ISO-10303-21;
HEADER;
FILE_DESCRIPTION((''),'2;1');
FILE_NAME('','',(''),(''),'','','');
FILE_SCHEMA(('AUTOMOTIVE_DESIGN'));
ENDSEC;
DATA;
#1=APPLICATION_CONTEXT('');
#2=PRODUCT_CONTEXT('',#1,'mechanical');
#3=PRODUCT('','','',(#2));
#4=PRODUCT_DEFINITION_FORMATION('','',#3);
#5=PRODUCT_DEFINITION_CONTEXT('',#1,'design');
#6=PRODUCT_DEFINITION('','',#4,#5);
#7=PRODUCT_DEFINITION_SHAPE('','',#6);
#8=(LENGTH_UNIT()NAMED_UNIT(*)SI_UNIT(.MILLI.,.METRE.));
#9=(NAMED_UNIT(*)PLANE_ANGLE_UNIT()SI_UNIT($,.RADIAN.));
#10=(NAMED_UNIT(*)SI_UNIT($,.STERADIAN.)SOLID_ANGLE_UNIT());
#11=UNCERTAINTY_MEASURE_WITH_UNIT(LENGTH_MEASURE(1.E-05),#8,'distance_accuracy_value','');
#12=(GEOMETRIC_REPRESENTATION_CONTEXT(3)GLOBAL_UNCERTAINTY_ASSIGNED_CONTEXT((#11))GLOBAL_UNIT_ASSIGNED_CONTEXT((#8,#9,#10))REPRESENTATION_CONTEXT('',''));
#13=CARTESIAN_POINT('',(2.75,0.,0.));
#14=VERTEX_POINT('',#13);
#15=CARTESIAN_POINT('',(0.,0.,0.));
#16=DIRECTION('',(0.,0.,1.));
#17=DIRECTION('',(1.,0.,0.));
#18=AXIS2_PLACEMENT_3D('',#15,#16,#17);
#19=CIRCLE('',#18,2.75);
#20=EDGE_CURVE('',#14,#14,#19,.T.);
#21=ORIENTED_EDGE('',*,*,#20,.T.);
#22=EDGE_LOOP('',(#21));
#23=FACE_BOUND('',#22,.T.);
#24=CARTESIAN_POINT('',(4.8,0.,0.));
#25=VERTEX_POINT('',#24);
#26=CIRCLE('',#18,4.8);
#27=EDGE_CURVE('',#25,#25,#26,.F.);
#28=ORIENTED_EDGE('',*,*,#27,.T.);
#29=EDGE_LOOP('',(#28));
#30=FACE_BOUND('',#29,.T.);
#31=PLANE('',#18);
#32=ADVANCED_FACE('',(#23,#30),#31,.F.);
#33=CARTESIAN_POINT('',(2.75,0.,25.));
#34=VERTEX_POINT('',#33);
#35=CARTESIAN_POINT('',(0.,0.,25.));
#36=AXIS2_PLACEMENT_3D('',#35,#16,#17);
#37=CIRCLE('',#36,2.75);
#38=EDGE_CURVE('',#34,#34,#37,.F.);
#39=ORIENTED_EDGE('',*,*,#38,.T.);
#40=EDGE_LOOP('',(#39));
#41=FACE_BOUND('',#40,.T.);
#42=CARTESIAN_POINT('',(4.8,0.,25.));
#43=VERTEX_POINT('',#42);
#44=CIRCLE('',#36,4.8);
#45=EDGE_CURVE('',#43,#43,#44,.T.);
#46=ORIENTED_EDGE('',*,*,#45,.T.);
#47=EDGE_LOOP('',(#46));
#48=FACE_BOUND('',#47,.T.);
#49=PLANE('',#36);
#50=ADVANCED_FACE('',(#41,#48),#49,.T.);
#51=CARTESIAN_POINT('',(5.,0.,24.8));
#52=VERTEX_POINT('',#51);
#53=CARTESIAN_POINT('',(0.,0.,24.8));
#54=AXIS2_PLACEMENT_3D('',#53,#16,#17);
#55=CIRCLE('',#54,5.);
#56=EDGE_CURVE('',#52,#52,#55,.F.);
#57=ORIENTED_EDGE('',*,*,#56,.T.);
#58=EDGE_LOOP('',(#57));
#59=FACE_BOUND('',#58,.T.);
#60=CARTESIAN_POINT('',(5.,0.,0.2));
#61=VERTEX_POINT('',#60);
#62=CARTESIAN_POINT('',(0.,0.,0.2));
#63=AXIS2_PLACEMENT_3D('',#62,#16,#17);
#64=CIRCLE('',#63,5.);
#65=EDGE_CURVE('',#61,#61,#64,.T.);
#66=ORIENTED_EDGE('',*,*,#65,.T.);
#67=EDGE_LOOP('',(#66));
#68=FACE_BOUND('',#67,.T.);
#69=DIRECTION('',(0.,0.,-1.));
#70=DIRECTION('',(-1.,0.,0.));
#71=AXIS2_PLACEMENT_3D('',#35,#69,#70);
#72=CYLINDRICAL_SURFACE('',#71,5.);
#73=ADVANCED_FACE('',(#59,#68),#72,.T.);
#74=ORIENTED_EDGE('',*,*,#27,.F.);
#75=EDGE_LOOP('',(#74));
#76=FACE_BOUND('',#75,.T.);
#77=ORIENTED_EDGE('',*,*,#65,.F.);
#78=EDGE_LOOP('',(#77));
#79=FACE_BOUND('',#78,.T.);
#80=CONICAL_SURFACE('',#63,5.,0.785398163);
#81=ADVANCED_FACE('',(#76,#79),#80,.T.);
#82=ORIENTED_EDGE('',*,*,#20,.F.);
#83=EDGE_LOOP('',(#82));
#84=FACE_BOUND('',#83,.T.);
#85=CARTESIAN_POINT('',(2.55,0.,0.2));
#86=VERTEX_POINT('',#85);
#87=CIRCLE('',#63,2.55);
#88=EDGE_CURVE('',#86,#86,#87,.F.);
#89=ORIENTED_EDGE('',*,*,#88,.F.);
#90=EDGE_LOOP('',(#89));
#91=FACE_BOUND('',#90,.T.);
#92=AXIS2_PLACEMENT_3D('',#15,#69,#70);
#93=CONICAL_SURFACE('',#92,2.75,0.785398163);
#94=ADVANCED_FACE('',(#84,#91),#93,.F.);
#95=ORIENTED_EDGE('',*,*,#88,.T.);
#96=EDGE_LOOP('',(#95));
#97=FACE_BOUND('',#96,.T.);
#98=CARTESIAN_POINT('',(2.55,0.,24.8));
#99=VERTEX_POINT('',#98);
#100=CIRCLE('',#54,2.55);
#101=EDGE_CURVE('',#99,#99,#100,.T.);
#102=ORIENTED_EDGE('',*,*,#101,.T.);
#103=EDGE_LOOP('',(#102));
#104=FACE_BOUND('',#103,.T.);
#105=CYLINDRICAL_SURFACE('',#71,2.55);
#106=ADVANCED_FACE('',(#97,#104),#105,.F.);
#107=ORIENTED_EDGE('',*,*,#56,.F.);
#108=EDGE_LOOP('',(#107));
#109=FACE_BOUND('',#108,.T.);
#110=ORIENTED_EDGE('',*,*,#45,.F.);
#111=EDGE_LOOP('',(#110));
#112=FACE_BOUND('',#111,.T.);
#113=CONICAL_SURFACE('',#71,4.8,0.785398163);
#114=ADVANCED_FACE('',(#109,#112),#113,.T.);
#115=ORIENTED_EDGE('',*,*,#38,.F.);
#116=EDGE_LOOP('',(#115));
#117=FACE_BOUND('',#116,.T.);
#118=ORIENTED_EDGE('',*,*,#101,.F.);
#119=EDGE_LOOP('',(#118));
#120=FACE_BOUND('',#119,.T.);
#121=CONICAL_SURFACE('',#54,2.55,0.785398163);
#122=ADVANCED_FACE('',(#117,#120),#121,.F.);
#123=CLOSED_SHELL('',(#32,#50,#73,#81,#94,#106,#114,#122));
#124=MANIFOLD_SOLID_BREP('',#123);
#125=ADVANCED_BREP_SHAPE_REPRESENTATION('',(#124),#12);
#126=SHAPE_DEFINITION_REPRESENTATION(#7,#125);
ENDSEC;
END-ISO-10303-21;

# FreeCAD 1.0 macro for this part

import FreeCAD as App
import Part
import Sketcher
Q = App.Units.Quantity


def edges_at(feature, points):
    """Names of the edges that pass closest to the given points."""
    edges = feature.Shape.Edges
    near = lambda p: min(range(len(edges)), key=lambda i: edges[i].distToShape(Part.Vertex(*p))[0])
    return sorted({f"Edge{near(p) + 1}" for p in points})

doc = App.newDocument("Part")
body = doc.addObject("PartDesign::Body", "Body")

sketch1 = body.newObject("Sketcher::SketchObject", "Sketch")
sketch1.AttachmentSupport = (doc.getObject("XY_Plane"), [""])
sketch1.MapMode = "FlatFace"
sketch1.addGeometry(Part.Circle(App.Vector(0, 0, 0), App.Vector(0, 0, 1), 5), False)
sketch1.addGeometry(Part.Circle(App.Vector(0, 0, 0), App.Vector(0, 0, 1), 2.5), False)
sketch1.addConstraint(Sketcher.Constraint("Coincident", 0, 3, -1, 1))
sketch1.addConstraint(Sketcher.Constraint("Coincident", 1, 3, -1, 1))
sketch1.addConstraint(Sketcher.Constraint("Diameter", 0, Q("10 mm")))
sketch1.addConstraint(Sketcher.Constraint("Diameter", 1, Q("5.1 mm")))
pad1 = body.newObject("PartDesign::Pad", "Pad")
pad1.Profile = sketch1
pad1.Length = 25
doc.recompute()

chamfer = body.newObject("PartDesign::Chamfer", "Chamfer")
chamfer.Base = (pad1, edges_at(pad1, [
    (-5, 0, 0),
    (-5, 0, 25),
    (-2.55, 0, 0),
    (-2.55, 0, 25),
]))
chamfer.Size = 0.2

doc.recompute()
